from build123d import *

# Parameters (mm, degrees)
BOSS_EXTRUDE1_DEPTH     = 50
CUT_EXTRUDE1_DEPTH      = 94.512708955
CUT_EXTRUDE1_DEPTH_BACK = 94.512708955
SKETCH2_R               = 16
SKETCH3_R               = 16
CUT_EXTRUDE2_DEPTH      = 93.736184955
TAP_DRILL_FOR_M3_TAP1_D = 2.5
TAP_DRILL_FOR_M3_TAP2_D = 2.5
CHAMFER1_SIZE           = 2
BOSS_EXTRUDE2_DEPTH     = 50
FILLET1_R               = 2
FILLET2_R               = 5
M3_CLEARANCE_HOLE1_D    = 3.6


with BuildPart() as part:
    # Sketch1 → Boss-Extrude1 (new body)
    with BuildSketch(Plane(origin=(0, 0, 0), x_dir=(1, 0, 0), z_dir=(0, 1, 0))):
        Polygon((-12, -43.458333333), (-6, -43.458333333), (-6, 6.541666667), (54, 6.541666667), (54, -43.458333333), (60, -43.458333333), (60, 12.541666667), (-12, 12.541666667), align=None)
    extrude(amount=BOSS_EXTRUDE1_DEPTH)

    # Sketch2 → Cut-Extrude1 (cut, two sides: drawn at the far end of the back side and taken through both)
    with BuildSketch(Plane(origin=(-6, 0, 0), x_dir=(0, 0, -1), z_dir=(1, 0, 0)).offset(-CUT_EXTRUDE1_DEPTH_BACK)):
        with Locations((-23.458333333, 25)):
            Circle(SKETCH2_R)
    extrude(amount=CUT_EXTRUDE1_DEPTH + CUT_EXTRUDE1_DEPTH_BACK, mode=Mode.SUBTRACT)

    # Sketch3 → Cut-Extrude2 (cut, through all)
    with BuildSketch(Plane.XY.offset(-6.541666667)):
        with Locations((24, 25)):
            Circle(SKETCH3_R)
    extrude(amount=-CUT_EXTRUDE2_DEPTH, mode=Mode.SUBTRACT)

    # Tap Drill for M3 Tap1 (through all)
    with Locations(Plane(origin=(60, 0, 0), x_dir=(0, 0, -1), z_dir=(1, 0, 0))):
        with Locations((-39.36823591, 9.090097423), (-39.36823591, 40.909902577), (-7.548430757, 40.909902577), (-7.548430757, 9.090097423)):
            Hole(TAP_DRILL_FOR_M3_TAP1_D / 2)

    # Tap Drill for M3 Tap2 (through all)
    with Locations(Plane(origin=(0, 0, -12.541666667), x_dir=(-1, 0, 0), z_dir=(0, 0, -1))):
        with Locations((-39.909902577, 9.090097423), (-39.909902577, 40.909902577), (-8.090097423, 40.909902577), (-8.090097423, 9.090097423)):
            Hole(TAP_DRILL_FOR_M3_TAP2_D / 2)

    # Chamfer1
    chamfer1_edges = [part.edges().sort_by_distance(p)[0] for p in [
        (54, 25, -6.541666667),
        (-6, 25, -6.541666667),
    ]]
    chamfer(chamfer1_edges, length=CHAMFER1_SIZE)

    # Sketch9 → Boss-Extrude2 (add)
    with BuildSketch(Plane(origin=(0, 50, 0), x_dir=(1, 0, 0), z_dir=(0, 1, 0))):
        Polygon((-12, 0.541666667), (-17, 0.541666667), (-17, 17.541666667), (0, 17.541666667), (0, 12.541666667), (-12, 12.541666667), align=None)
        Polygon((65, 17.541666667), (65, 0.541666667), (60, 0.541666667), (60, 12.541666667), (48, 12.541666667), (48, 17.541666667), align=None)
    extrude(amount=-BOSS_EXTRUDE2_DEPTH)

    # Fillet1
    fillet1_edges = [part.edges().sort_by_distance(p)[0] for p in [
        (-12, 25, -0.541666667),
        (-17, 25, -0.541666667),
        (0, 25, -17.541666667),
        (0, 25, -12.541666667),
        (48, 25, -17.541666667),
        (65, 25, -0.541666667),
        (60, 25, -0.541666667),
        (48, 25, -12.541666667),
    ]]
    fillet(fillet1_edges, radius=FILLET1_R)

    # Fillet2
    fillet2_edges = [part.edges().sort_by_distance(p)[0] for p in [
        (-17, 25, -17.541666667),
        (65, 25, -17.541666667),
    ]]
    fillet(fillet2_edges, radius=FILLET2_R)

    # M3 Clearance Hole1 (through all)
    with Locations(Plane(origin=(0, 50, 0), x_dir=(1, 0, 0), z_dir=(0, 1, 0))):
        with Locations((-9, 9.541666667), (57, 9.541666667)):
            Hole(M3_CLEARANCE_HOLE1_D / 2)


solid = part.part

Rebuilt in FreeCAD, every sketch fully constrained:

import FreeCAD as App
import Part
import Sketcher
from FreeCAD import Vector
Q = App.Units.Quantity


def edges_at(feature, points):
    """Names of the edges that pass closest to the given points."""
    edges = feature.Shape.Edges
    near = lambda p: min(range(len(edges)), key=lambda i: edges[i].distToShape(Part.Vertex(*p))[0])
    return sorted({f"Edge{near(p) + 1}" for p in points})


def add_polygon(sketch, points):
    """Adds a closed chain of lines whose ends are joined by coincident constraints."""
    first, n = sketch.GeometryCount, len(points)
    for a, b in zip(points, points[1:] + points[:1]):
        sketch.addGeometry(Part.LineSegment(App.Vector(*a, 0), App.Vector(*b, 0)), False)
    for i in range(n):
        sketch.addConstraint(Sketcher.Constraint("Coincident", first + i, 2, first + (i + 1) % n, 1))

doc = App.newDocument("Part")
body = doc.addObject("PartDesign::Body", "Body")

sketch1 = doc.addObject("Sketcher::SketchObject", "Sketch")
body.addObject(sketch1)
sketch1.AttachmentSupport = (doc.XZ_Plane, [""])
sketch1.MapMode = "FlatFace"
add_polygon(sketch1, [(-12, 43), (-6, 43), (-6, -7), (54, -7), (54, 43), (60, 43), (60, -13), (-12, -13)])
sketch1.addConstraint(Sketcher.Constraint("Horizontal", 0))
sketch1.addConstraint(Sketcher.Constraint("Vertical", 1))
sketch1.addConstraint(Sketcher.Constraint("Horizontal", 2))
sketch1.addConstraint(Sketcher.Constraint("Vertical", 3))
sketch1.addConstraint(Sketcher.Constraint("Horizontal", 4))
sketch1.addConstraint(Sketcher.Constraint("Vertical", 5))
sketch1.addConstraint(Sketcher.Constraint("Horizontal", 6))
sketch1.addConstraint(Sketcher.Constraint("Vertical", 7))
sketch1.addConstraint(Sketcher.Constraint("Horizontal", 0, 2, 3, 2))
sketch1.addConstraint(Sketcher.Constraint("Equal", 0, 4))
sketch1.addConstraint(Sketcher.Constraint("DistanceX", 0, 1, 0, 2, Q("6 mm")))
sketch1.addConstraint(Sketcher.Constraint("DistanceX", 2, 1, 2, 2, Q("60 mm")))
sketch1.addConstraint(Sketcher.Constraint("DistanceY", 1, 2, 1, 1, Q("50 mm")))
sketch1.addConstraint(Sketcher.Constraint("DistanceY", 5, 2, 5, 1, Q("56 mm")))
sketch1.addConstraint(Sketcher.Constraint("DistanceX", 0, 2, -1, 1, Q("6 mm")))
sketch1.addConstraint(Sketcher.Constraint("DistanceY", -1, 1, 0, 2, Q("43.458333 mm")))
pad1 = doc.addObject("PartDesign::Pad", "Pad")
body.addObject(pad1)
pad1.Profile = sketch1
pad1.Length = 50
pad1.Reversed = True

sketch2 = doc.addObject("Sketcher::SketchObject", "Sketch001")
body.addObject(sketch2)
sketch2.AttachmentSupport = (doc.YZ_Plane, [""])
sketch2.MapMode = "FlatFace"
sketch2.AttachmentOffset = App.Placement(Vector(0, 0, -6), App.Rotation())
sketch2.addGeometry(Part.Circle(Vector(25, 23, 0), Vector(0, 0, 1), 16), False)
sketch2.addConstraint(Sketcher.Constraint("Diameter", 0, Q("32 mm")))
sketch2.addConstraint(Sketcher.Constraint("DistanceX", -1, 1, 0, 3, Q("25 mm")))
sketch2.addConstraint(Sketcher.Constraint("DistanceY", -1, 1, 0, 3, Q("23.458333 mm")))
pocket1 = doc.addObject("PartDesign::Pocket", "Pocket")
body.addObject(pocket1)
pocket1.Profile = sketch2
pocket1.Type = "ThroughAll"
pocket1.Midplane = True

sketch3 = doc.addObject("Sketcher::SketchObject", "Sketch002")
body.addObject(sketch3)
sketch3.AttachmentSupport = (doc.XY_Plane, [""])
sketch3.MapMode = "FlatFace"
sketch3.AttachmentOffset = App.Placement(Vector(0, 0, -6.541667), App.Rotation())
sketch3.addGeometry(Part.Circle(Vector(24, 25, 0), Vector(0, 0, 1), 16), False)
sketch3.addConstraint(Sketcher.Constraint("Diameter", 0, Q("32 mm")))
sketch3.addConstraint(Sketcher.Constraint("DistanceX", -1, 1, 0, 3, Q("24 mm")))
sketch3.addConstraint(Sketcher.Constraint("DistanceY", -1, 1, 0, 3, Q("25 mm")))
pocket2 = doc.addObject("PartDesign::Pocket", "Pocket001")
body.addObject(pocket2)
pocket2.Profile = sketch3
pocket2.Type = "ThroughAll"

sketch4 = doc.addObject("Sketcher::SketchObject", "Sketch003")
body.addObject(sketch4)
sketch4.AttachmentSupport = (doc.YZ_Plane, [""])
sketch4.MapMode = "FlatFace"
sketch4.AttachmentOffset = App.Placement(Vector(0, 0, 60), App.Rotation())
sketch4.addGeometry(Part.Circle(Vector(9.1, 39.4, 0), Vector(0, 0, 1), 1.2), False)
sketch4.addGeometry(Part.Circle(Vector(40.9, 39.4, 0), Vector(0, 0, 1), 1.2), False)
sketch4.addGeometry(Part.Circle(Vector(40.9, 7.5, 0), Vector(0, 0, 1), 1.2), False)
sketch4.addGeometry(Part.Circle(Vector(9.1, 7.5, 0), Vector(0, 0, 1), 1.2), False)
sketch4.addConstraint(Sketcher.Constraint("Equal", 0, 1))
sketch4.addConstraint(Sketcher.Constraint("Equal", 1, 2))
sketch4.addConstraint(Sketcher.Constraint("Equal", 2, 3))
sketch4.addConstraint(Sketcher.Constraint("Horizontal", 0, 3, 1, 3))
sketch4.addConstraint(Sketcher.Constraint("Horizontal", 2, 3, 3, 3))
sketch4.addConstraint(Sketcher.Constraint("Vertical", 1, 3, 2, 3))
sketch4.addConstraint(Sketcher.Constraint("Vertical", 0, 3, 3, 3))
sketch4.addConstraint(Sketcher.Constraint("Diameter", 0, Q("2.5 mm")))
sketch4.addConstraint(Sketcher.Constraint("DistanceY", -1, 1, 2, 3, Q("7.548431 mm")))
sketch4.addConstraint(Sketcher.Constraint("DistanceX", -1, 1, 0, 3, Q("9.090097 mm")))
sketch4.addConstraint(Sketcher.Constraint("DistanceY", -1, 1, 0, 3, Q("39.368236 mm")))
sketch4.addConstraint(Sketcher.Constraint("DistanceX", -1, 1, 1, 3, Q("40.909903 mm")))
doc.recompute()
hole = doc.addObject("PartDesign::Hole", "Hole")
body.addObject(hole)
hole.Profile = sketch4
hole.ThreadType = "None"
hole.Diameter = 2.5
hole.DepthType = "ThroughAll"

sketch5 = doc.addObject("Sketcher::SketchObject", "Sketch004")
body.addObject(sketch5)
sketch5.AttachmentSupport = (doc.XY_Plane, [""])
sketch5.MapMode = "FlatFace"
sketch5.AttachmentOffset = App.Placement(Vector(0, 0, -12.541667), App.Rotation())
sketch5.addGeometry(Part.Circle(Vector(39.9, 9.1, 0), Vector(0, 0, 1), 1.2), False)
sketch5.addGeometry(Part.Circle(Vector(39.9, 40.9, 0), Vector(0, 0, 1), 1.2), False)
sketch5.addGeometry(Part.Circle(Vector(8.1, 40.9, 0), Vector(0, 0, 1), 1.2), False)
sketch5.addGeometry(Part.Circle(Vector(8.1, 9.1, 0), Vector(0, 0, 1), 1.2), False)
sketch5.addConstraint(Sketcher.Constraint("Equal", 0, 1))
sketch5.addConstraint(Sketcher.Constraint("Equal", 1, 2))
sketch5.addConstraint(Sketcher.Constraint("Equal", 2, 3))
sketch5.addConstraint(Sketcher.Constraint("Horizontal", 1, 3, 2, 3))
sketch5.addConstraint(Sketcher.Constraint("Horizontal", 0, 3, 3, 3))
sketch5.addConstraint(Sketcher.Constraint("Vertical", 0, 3, 1, 3))
sketch5.addConstraint(Sketcher.Constraint("Vertical", 2, 3, 3, 3))
sketch5.addConstraint(Sketcher.Constraint("Diameter", 0, Q("2.5 mm")))
sketch5.addConstraint(Sketcher.Constraint("DistanceX", -1, 1, 0, 3, Q("39.909903 mm")))
sketch5.addConstraint(Sketcher.Constraint("DistanceY", -1, 1, 0, 3, Q("9.090097 mm")))
sketch5.addConstraint(Sketcher.Constraint("DistanceY", -1, 1, 1, 3, Q("40.909903 mm")))
sketch5.addConstraint(Sketcher.Constraint("DistanceX", -1, 1, 2, 3, Q("8.090097 mm")))
doc.recompute()
hole2 = doc.addObject("PartDesign::Hole", "Hole001")
body.addObject(hole2)
hole2.Profile = sketch5
hole2.ThreadType = "None"
hole2.Diameter = 2.5
hole2.DepthType = "ThroughAll"
hole2.Reversed = True
doc.recompute()

chamfer = doc.addObject("PartDesign::Chamfer", "Chamfer")
body.addObject(chamfer)
chamfer.Base = (hole2, edges_at(hole2, [(54, 25, -6.542), (-6, 25, -6.542)]))
chamfer.Size = 2

sketch6 = doc.addObject("Sketcher::SketchObject", "Sketch005")
body.addObject(sketch6)
sketch6.AttachmentSupport = (doc.XZ_Plane, [""])
sketch6.MapMode = "FlatFace"
sketch6.AttachmentOffset = App.Placement(Vector(0, 0, -50), App.Rotation())
add_polygon(sketch6, [(-17, -1), (-12, -1), (-12, -13), (0, -13), (0, -18), (-17, -18)])
add_polygon(sketch6, [(65, -1), (65, -18), (48, -18), (48, -13), (60, -13), (60, -1)])
sketch6.addConstraint(Sketcher.Constraint("Horizontal", 0))
sketch6.addConstraint(Sketcher.Constraint("Vertical", 1))
sketch6.addConstraint(Sketcher.Constraint("Horizontal", 2))
sketch6.addConstraint(Sketcher.Constraint("Vertical", 3))
sketch6.addConstraint(Sketcher.Constraint("Horizontal", 4))
sketch6.addConstraint(Sketcher.Constraint("Vertical", 5))
sketch6.addConstraint(Sketcher.Constraint("Vertical", 6))
sketch6.addConstraint(Sketcher.Constraint("Horizontal", 7))
sketch6.addConstraint(Sketcher.Constraint("Vertical", 8))
sketch6.addConstraint(Sketcher.Constraint("Horizontal", 9))
sketch6.addConstraint(Sketcher.Constraint("Vertical", 10))
sketch6.addConstraint(Sketcher.Constraint("Horizontal", 11))
sketch6.addConstraint(Sketcher.Constraint("PointOnObject", 2, 2, -2))
sketch6.addConstraint(Sketcher.Constraint("Horizontal", 4, 2, 6, 2))
sketch6.addConstraint(Sketcher.Constraint("Horizontal", 2, 2, 8, 2))
sketch6.addConstraint(Sketcher.Constraint("Horizontal", 5, 2, 10, 2))
sketch6.addConstraint(Sketcher.Constraint("Equal", 4, 7))
sketch6.addConstraint(Sketcher.Constraint("Equal", 2, 9))
sketch6.addConstraint(Sketcher.Constraint("Equal", 9, 1))
sketch6.addConstraint(Sketcher.Constraint("Equal", 11, 3))
sketch6.addConstraint(Sketcher.Constraint("DistanceX", 0, 1, 0, 2, Q("5 mm")))
sketch6.addConstraint(Sketcher.Constraint("DistanceX", 2, 1, 2, 2, Q("12 mm")))
sketch6.addConstraint(Sketcher.Constraint("DistanceX", -1, 1, 6, 2, Q("65 mm")))
sketch6.addConstraint(Sketcher.Constraint("DistanceY", 0, 2, -1, 1, Q("0.541667 mm")))
pad2 = doc.addObject("PartDesign::Pad", "Pad001")
body.addObject(pad2)
pad2.Profile = sketch6
pad2.Length = 50
doc.recompute()

fillet = doc.addObject("PartDesign::Fillet", "Fillet")
body.addObject(fillet)
fillet.Base = (pad2, edges_at(pad2, [
    (-12, 25, -0.542),
    (-17, 25, -0.542),
    (0, 25, -17.542),
    (0, 25, -12.542),
    (48, 25, -17.542),
    (65, 25, -0.542),
    (60, 25, -0.542),
    (48, 25, -12.542),
]))
fillet.Radius = 2
doc.recompute()

fillet2 = doc.addObject("PartDesign::Fillet", "Fillet001")
body.addObject(fillet2)
fillet2.Base = (fillet, edges_at(fillet, [(-17, 25, -17.542), (65, 25, -17.542)]))
fillet2.Radius = 5

sketch7 = doc.addObject("Sketcher::SketchObject", "Sketch006")
body.addObject(sketch7)
sketch7.AttachmentSupport = (doc.XZ_Plane, [""])
sketch7.MapMode = "FlatFace"
sketch7.AttachmentOffset = App.Placement(Vector(0, 0, -50), App.Rotation())
sketch7.addGeometry(Part.Circle(Vector(-9, -9.5, 0), Vector(0, 0, 1), 1.8), False)
sketch7.addGeometry(Part.Circle(Vector(57, -9.5, 0), Vector(0, 0, 1), 1.8), False)
sketch7.addConstraint(Sketcher.Constraint("Equal", 0, 1))
sketch7.addConstraint(Sketcher.Constraint("Horizontal", 0, 3, 1, 3))
sketch7.addConstraint(Sketcher.Constraint("Diameter", 0, Q("3.6 mm")))
sketch7.addConstraint(Sketcher.Constraint("DistanceX", 0, 3, -1, 1, Q("9 mm")))
sketch7.addConstraint(Sketcher.Constraint("DistanceX", -1, 1, 1, 3, Q("57 mm")))
sketch7.addConstraint(Sketcher.Constraint("DistanceY", 0, 3, -1, 1, Q("9.541667 mm")))
doc.recompute()
hole3 = doc.addObject("PartDesign::Hole", "Hole002")
body.addObject(hole3)
hole3.Profile = sketch7
hole3.ThreadType = "None"
hole3.Diameter = 3.6
hole3.DepthType = "ThroughAll"
hole3.Reversed = True

doc.recompute()
